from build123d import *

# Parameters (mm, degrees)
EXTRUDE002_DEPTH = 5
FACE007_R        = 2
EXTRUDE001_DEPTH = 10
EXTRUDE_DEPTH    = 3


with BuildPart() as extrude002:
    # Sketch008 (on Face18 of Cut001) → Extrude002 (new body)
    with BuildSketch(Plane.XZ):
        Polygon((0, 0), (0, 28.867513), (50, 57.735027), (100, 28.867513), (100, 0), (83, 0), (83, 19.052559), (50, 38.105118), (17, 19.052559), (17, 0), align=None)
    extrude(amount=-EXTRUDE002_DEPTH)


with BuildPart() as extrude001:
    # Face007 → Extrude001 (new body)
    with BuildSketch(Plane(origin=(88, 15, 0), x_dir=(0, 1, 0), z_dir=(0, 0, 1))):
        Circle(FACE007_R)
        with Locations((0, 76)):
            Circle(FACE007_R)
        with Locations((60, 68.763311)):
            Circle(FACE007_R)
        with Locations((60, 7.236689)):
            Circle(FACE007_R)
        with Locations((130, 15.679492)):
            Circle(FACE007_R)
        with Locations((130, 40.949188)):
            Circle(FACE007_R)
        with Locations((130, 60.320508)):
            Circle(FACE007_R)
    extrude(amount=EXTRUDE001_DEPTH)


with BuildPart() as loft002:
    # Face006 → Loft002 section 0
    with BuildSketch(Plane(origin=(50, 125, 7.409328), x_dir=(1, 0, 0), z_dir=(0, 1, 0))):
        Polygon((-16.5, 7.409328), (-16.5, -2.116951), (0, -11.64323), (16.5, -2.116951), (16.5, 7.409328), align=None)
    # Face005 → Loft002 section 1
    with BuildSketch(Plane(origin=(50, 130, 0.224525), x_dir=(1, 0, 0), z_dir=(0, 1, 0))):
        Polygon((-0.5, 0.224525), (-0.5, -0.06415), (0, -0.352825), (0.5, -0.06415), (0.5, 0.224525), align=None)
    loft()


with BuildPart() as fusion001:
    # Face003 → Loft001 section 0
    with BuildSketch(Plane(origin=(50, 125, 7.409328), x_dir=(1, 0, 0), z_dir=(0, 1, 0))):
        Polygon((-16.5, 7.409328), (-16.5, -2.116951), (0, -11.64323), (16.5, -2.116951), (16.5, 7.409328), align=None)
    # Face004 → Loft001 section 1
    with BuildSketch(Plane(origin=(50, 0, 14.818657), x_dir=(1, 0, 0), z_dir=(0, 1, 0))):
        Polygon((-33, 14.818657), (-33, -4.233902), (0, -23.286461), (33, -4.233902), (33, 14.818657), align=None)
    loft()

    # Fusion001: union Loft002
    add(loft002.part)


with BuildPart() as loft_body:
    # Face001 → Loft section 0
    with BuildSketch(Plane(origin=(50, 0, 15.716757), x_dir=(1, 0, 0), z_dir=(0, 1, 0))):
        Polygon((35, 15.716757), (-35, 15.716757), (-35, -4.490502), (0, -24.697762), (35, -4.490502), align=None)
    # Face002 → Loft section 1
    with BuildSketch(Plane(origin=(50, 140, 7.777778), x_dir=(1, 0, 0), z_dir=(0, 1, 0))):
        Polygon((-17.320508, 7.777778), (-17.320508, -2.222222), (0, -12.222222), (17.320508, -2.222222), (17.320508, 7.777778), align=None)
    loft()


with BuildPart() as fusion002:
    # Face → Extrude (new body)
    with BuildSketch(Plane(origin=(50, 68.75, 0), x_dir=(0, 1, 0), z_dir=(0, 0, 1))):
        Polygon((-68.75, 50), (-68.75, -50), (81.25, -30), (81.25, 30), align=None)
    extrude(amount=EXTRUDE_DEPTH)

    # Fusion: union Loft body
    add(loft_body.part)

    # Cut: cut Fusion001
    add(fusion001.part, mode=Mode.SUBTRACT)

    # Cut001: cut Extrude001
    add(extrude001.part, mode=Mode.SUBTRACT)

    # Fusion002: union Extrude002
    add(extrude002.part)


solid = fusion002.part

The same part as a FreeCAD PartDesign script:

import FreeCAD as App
import Part
import Sketcher
Q = App.Units.Quantity

doc = App.newDocument("Part")
body = doc.addObject("PartDesign::Body", "Body")

# Sketch on XZ plane
sketch1 = body.newObject("Sketcher::SketchObject", "Sketch")
sketch1.AttachmentSupport = (doc.getObject("XZ_Plane"), [""])
sketch1.MapMode = "FlatFace"
sketch1.addGeometry(Part.LineSegment(App.Vector(0, 28.867513, 0), App.Vector(0, 0, 0)), False)
sketch1.addGeometry(Part.LineSegment(App.Vector(0, 0, 0), App.Vector(17, 0, 0)), False)
sketch1.addGeometry(Part.LineSegment(App.Vector(17, 0, 0), App.Vector(17, 19.052559, 0)), False)
sketch1.addGeometry(Part.LineSegment(App.Vector(17, 19.052559, 0), App.Vector(50, 38.105118, 0)), False)
sketch1.addGeometry(Part.LineSegment(App.Vector(50, 38.105118, 0), App.Vector(83, 19.052559, 0)), False)
sketch1.addGeometry(Part.LineSegment(App.Vector(83, 19.052559, 0), App.Vector(83, 0, 0)), False)
sketch1.addGeometry(Part.LineSegment(App.Vector(83, 0, 0), App.Vector(100, 0, 0)), False)
sketch1.addGeometry(Part.LineSegment(App.Vector(100, 0, 0), App.Vector(100, 28.867513, 0)), False)
sketch1.addGeometry(Part.LineSegment(App.Vector(100, 28.867513, 0), App.Vector(50, 57.735027, 0)), False)
sketch1.addGeometry(Part.LineSegment(App.Vector(50, 57.735027, 0), App.Vector(0, 28.867513, 0)), False)
sketch1.addConstraint(Sketcher.Constraint("Coincident", 0, 2, 1, 1))
sketch1.addConstraint(Sketcher.Constraint("Coincident", 1, 2, 2, 1))
sketch1.addConstraint(Sketcher.Constraint("Coincident", 2, 2, 3, 1))
sketch1.addConstraint(Sketcher.Constraint("Coincident", 3, 2, 4, 1))
sketch1.addConstraint(Sketcher.Constraint("Coincident", 4, 2, 5, 1))
sketch1.addConstraint(Sketcher.Constraint("Coincident", 5, 2, 6, 1))
sketch1.addConstraint(Sketcher.Constraint("Coincident", 6, 2, 7, 1))
sketch1.addConstraint(Sketcher.Constraint("Coincident", 7, 2, 8, 1))
sketch1.addConstraint(Sketcher.Constraint("Coincident", 8, 2, 9, 1))
sketch1.addConstraint(Sketcher.Constraint("Coincident", 9, 2, 0, 1))
sketch1.addConstraint(Sketcher.Constraint("Vertical", 0))
sketch1.addConstraint(Sketcher.Constraint("Horizontal", 1))
sketch1.addConstraint(Sketcher.Constraint("Vertical", 2))
sketch1.addConstraint(Sketcher.Constraint("Vertical", 5))
sketch1.addConstraint(Sketcher.Constraint("Horizontal", 6))
sketch1.addConstraint(Sketcher.Constraint("Vertical", 7))
sketch1.addConstraint(Sketcher.Constraint("Coincident", 0, 2, -1, 1))
sketch1.addConstraint(Sketcher.Constraint("PointOnObject", 5, 2, -1))
sketch1.addConstraint(Sketcher.Constraint("Parallel", 4, 8))
sketch1.addConstraint(Sketcher.Constraint("Parallel", 3, 9))
sketch1.addConstraint(Sketcher.Constraint("Horizontal", 2, 2, 4, 2))
sketch1.addConstraint(Sketcher.Constraint("Horizontal", 7, 2, 9, 2))
sketch1.addConstraint(Sketcher.Constraint("Vertical", 3, 2, 8, 2))
sketch1.addConstraint(Sketcher.Constraint("Equal", 1, 6))
sketch1.addConstraint(Sketcher.Constraint("DistanceX", 1, 1, 1, 2, Q("17 mm")))
sketch1.addConstraint(Sketcher.Constraint("Angle", 3, Q("30 deg")))
sketch1.addConstraint(Sketcher.Constraint("DistanceX", -1, 1, 3, 2, Q("50 mm")))
sketch1.addConstraint(Sketcher.Constraint("DistanceY", 2, 1, 2, 2, Q("19.052559 mm")))
sketch1.addConstraint(Sketcher.Constraint("DistanceY", 0, 2, 0, 1, Q("28.867513 mm")))
pad1 = body.newObject("PartDesign::Pad", "Pad")
pad1.Profile = sketch1
pad1.Length = 5
pad1.Reversed = True
body2 = doc.addObject("PartDesign::Body", "Body001")
body2.AllowCompound = True

# Sketch on XY plane
sketch2 = body2.newObject("Sketcher::SketchObject", "Sketch001")
sketch2.AttachmentSupport = (doc.getObject("XY_Plane001"), [""])
sketch2.MapMode = "FlatFace"
sketch2.addGeometry(Part.Circle(App.Vector(88, 15, 0), App.Vector(0, 0, 1), 2), False)
sketch2.addGeometry(Part.Circle(App.Vector(12, 15, 0), App.Vector(0, 0, 1), 2), False)
sketch2.addGeometry(Part.Circle(App.Vector(19.236689, 75, 0), App.Vector(0, 0, 1), 2), False)
sketch2.addGeometry(Part.Circle(App.Vector(80.763311, 75, 0), App.Vector(0, 0, 1), 2), False)
sketch2.addGeometry(Part.Circle(App.Vector(72.320508, 145, 0), App.Vector(0, 0, 1), 2), False)
sketch2.addGeometry(Part.Circle(App.Vector(47.050812, 145, 0), App.Vector(0, 0, 1), 2), False)
sketch2.addGeometry(Part.Circle(App.Vector(27.679492, 145, 0), App.Vector(0, 0, 1), 2), False)
sketch2.addConstraint(Sketcher.Constraint("Equal", 0, 1))
sketch2.addConstraint(Sketcher.Constraint("Equal", 1, 2))
sketch2.addConstraint(Sketcher.Constraint("Equal", 2, 3))
sketch2.addConstraint(Sketcher.Constraint("Equal", 3, 4))
sketch2.addConstraint(Sketcher.Constraint("Equal", 4, 5))
sketch2.addConstraint(Sketcher.Constraint("Equal", 5, 6))
sketch2.addConstraint(Sketcher.Constraint("Horizontal", 0, 3, 1, 3))
sketch2.addConstraint(Sketcher.Constraint("Horizontal", 2, 3, 3, 3))
sketch2.addConstraint(Sketcher.Constraint("Horizontal", 4, 3, 5, 3))
sketch2.addConstraint(Sketcher.Constraint("Horizontal", 5, 3, 6, 3))
sketch2.addConstraint(Sketcher.Constraint("Diameter", 0, Q("4 mm")))
sketch2.addConstraint(Sketcher.Constraint("DistanceX", -1, 1, 0, 3, Q("88 mm")))
sketch2.addConstraint(Sketcher.Constraint("DistanceY", -1, 1, 0, 3, Q("15 mm")))
sketch2.addConstraint(Sketcher.Constraint("DistanceX", -1, 1, 1, 3, Q("12 mm")))
sketch2.addConstraint(Sketcher.Constraint("DistanceY", -1, 1, 2, 3, Q("75 mm")))
sketch2.addConstraint(Sketcher.Constraint("DistanceY", -1, 1, 4, 3, Q("145 mm")))
sketch2.addConstraint(Sketcher.Constraint("DistanceX", 5, 3, 3, 3, Q("33.712499 mm")))
sketch2.addConstraint(Sketcher.Constraint("DistanceX", -1, 1, 2, 3, Q("19.236689 mm")))
sketch2.addConstraint(Sketcher.Constraint("DistanceX", -1, 1, 3, 3, Q("80.763311 mm")))
sketch2.addConstraint(Sketcher.Constraint("DistanceX", -1, 1, 4, 3, Q("72.320508 mm")))
sketch2.addConstraint(Sketcher.Constraint("DistanceX", -1, 1, 6, 3, Q("27.679492 mm")))
pad2 = body2.newObject("PartDesign::Pad", "Pad001")
pad2.Profile = sketch2
pad2.Length = 10
body3 = doc.addObject("PartDesign::Body", "Body002")

# Sketch on XZ plane
sketch3 = body3.newObject("Sketcher::SketchObject", "Sketch002")
sketch3.AttachmentSupport = (doc.getObject("XZ_Plane002"), [""])
sketch3.MapMode = "FlatFace"
sketch3.AttachmentOffset = App.Placement(App.Vector(0, 0, -125), App.Rotation())
sketch3.addGeometry(Part.LineSegment(App.Vector(33.5, 0, 0), App.Vector(33.5, 9.526279, 0)), False)
sketch3.addGeometry(Part.LineSegment(App.Vector(33.5, 9.526279, 0), App.Vector(50, 19.052558, 0)), False)
sketch3.addGeometry(Part.LineSegment(App.Vector(50, 19.052558, 0), App.Vector(66.5, 9.526279, 0)), False)
sketch3.addGeometry(Part.LineSegment(App.Vector(66.5, 9.526279, 0), App.Vector(66.5, 0, 0)), False)
sketch3.addGeometry(Part.LineSegment(App.Vector(66.5, 0, 0), App.Vector(33.5, 0, 0)), False)
sketch3.addConstraint(Sketcher.Constraint("Coincident", 0, 2, 1, 1))
sketch3.addConstraint(Sketcher.Constraint("Coincident", 1, 2, 2, 1))
sketch3.addConstraint(Sketcher.Constraint("Coincident", 2, 2, 3, 1))
sketch3.addConstraint(Sketcher.Constraint("Coincident", 3, 2, 4, 1))
sketch3.addConstraint(Sketcher.Constraint("Coincident", 4, 2, 0, 1))
sketch3.addConstraint(Sketcher.Constraint("Vertical", 0))
sketch3.addConstraint(Sketcher.Constraint("Vertical", 3))
sketch3.addConstraint(Sketcher.Constraint("Horizontal", 4))
sketch3.addConstraint(Sketcher.Constraint("PointOnObject", 3, 2, -1))
sketch3.addConstraint(Sketcher.Constraint("Horizontal", 0, 2, 2, 2))
sketch3.addConstraint(Sketcher.Constraint("Equal", 1, 2))
sketch3.addConstraint(Sketcher.Constraint("DistanceX", 4, 2, 4, 1, Q("33 mm")))
sketch3.addConstraint(Sketcher.Constraint("Angle", 1, Q("29.999999 deg")))
sketch3.addConstraint(Sketcher.Constraint("DistanceX", -1, 1, 1, 2, Q("50 mm")))
sketch3.addConstraint(Sketcher.Constraint("DistanceY", 0, 1, 0, 2, Q("9.526279 mm")))

# Sketch on XZ plane
sketch4 = body3.newObject("Sketcher::SketchObject", "Sketch003")
sketch4.AttachmentSupport = (doc.getObject("XZ_Plane002"), [""])
sketch4.MapMode = "FlatFace"
sketch4.AttachmentOffset = App.Placement(App.Vector(0, 0, -130), App.Rotation())
sketch4.addGeometry(Part.LineSegment(App.Vector(49.5, 0, 0), App.Vector(49.5, 0.288675, 0)), False)
sketch4.addGeometry(Part.LineSegment(App.Vector(49.5, 0.288675, 0), App.Vector(50, 0.57735, 0)), False)
sketch4.addGeometry(Part.LineSegment(App.Vector(50, 0.57735, 0), App.Vector(50.5, 0.288675, 0)), False)
sketch4.addGeometry(Part.LineSegment(App.Vector(50.5, 0.288675, 0), App.Vector(50.5, 0, 0)), False)
sketch4.addGeometry(Part.LineSegment(App.Vector(50.5, 0, 0), App.Vector(49.5, 0, 0)), False)
sketch4.addConstraint(Sketcher.Constraint("Coincident", 0, 2, 1, 1))
sketch4.addConstraint(Sketcher.Constraint("Coincident", 1, 2, 2, 1))
sketch4.addConstraint(Sketcher.Constraint("Coincident", 2, 2, 3, 1))
sketch4.addConstraint(Sketcher.Constraint("Coincident", 3, 2, 4, 1))
sketch4.addConstraint(Sketcher.Constraint("Coincident", 4, 2, 0, 1))
sketch4.addConstraint(Sketcher.Constraint("Vertical", 0))
sketch4.addConstraint(Sketcher.Constraint("Vertical", 3))
sketch4.addConstraint(Sketcher.Constraint("Horizontal", 4))
sketch4.addConstraint(Sketcher.Constraint("PointOnObject", 3, 2, -1))
sketch4.addConstraint(Sketcher.Constraint("Horizontal", 0, 2, 2, 2))
sketch4.addConstraint(Sketcher.Constraint("Equal", 1, 2))
sketch4.addConstraint(Sketcher.Constraint("DistanceX", 4, 2, 4, 1, Q("1 mm")))
sketch4.addConstraint(Sketcher.Constraint("Angle", 1, Q("29.999988 deg")))
sketch4.addConstraint(Sketcher.Constraint("DistanceX", -1, 1, 1, 2, Q("50 mm")))
sketch4.addConstraint(Sketcher.Constraint("DistanceY", 0, 1, 0, 2, Q("0.288675 mm")))

additiveloft = body3.newObject("PartDesign::AdditiveLoft", "AdditiveLoft")
additiveloft.Profile = sketch3
additiveloft.Sections = [sketch4]
body4 = doc.addObject("PartDesign::Body", "Body003")

# Sketch on XZ plane
sketch5 = body4.newObject("Sketcher::SketchObject", "Sketch004")
sketch5.AttachmentSupport = (doc.getObject("XZ_Plane003"), [""])
sketch5.MapMode = "FlatFace"
sketch5.AttachmentOffset = App.Placement(App.Vector(0, 0, -125), App.Rotation())
sketch5.addGeometry(Part.LineSegment(App.Vector(33.5, 0, 0), App.Vector(33.5, 9.526279, 0)), False)
sketch5.addGeometry(Part.LineSegment(App.Vector(33.5, 9.526279, 0), App.Vector(50, 19.052558, 0)), False)
sketch5.addGeometry(Part.LineSegment(App.Vector(50, 19.052558, 0), App.Vector(66.5, 9.526279, 0)), False)
sketch5.addGeometry(Part.LineSegment(App.Vector(66.5, 9.526279, 0), App.Vector(66.5, 0, 0)), False)
sketch5.addGeometry(Part.LineSegment(App.Vector(66.5, 0, 0), App.Vector(33.5, 0, 0)), False)
sketch5.addConstraint(Sketcher.Constraint("Coincident", 0, 2, 1, 1))
sketch5.addConstraint(Sketcher.Constraint("Coincident", 1, 2, 2, 1))
sketch5.addConstraint(Sketcher.Constraint("Coincident", 2, 2, 3, 1))
sketch5.addConstraint(Sketcher.Constraint("Coincident", 3, 2, 4, 1))
sketch5.addConstraint(Sketcher.Constraint("Coincident", 4, 2, 0, 1))
sketch5.addConstraint(Sketcher.Constraint("Vertical", 0))
sketch5.addConstraint(Sketcher.Constraint("Vertical", 3))
sketch5.addConstraint(Sketcher.Constraint("Horizontal", 4))
sketch5.addConstraint(Sketcher.Constraint("PointOnObject", 3, 2, -1))
sketch5.addConstraint(Sketcher.Constraint("Horizontal", 0, 2, 2, 2))
sketch5.addConstraint(Sketcher.Constraint("Equal", 1, 2))
sketch5.addConstraint(Sketcher.Constraint("DistanceX", 4, 2, 4, 1, Q("33 mm")))
sketch5.addConstraint(Sketcher.Constraint("Angle", 1, Q("29.999999 deg")))
sketch5.addConstraint(Sketcher.Constraint("DistanceX", -1, 1, 1, 2, Q("50 mm")))
sketch5.addConstraint(Sketcher.Constraint("DistanceY", 0, 1, 0, 2, Q("9.526279 mm")))

# Sketch on XZ plane
sketch6 = body4.newObject("Sketcher::SketchObject", "Sketch005")
sketch6.AttachmentSupport = (doc.getObject("XZ_Plane003"), [""])
sketch6.MapMode = "FlatFace"
sketch6.addGeometry(Part.LineSegment(App.Vector(17, 0, 0), App.Vector(17, 19.052559, 0)), False)
sketch6.addGeometry(Part.LineSegment(App.Vector(17, 19.052559, 0), App.Vector(50, 38.105118, 0)), False)
sketch6.addGeometry(Part.LineSegment(App.Vector(50, 38.105118, 0), App.Vector(83, 19.052559, 0)), False)
sketch6.addGeometry(Part.LineSegment(App.Vector(83, 19.052559, 0), App.Vector(83, 0, 0)), False)
sketch6.addGeometry(Part.LineSegment(App.Vector(83, 0, 0), App.Vector(17, 0, 0)), False)
sketch6.addConstraint(Sketcher.Constraint("Coincident", 0, 2, 1, 1))
sketch6.addConstraint(Sketcher.Constraint("Coincident", 1, 2, 2, 1))
sketch6.addConstraint(Sketcher.Constraint("Coincident", 2, 2, 3, 1))
sketch6.addConstraint(Sketcher.Constraint("Coincident", 3, 2, 4, 1))
sketch6.addConstraint(Sketcher.Constraint("Coincident", 4, 2, 0, 1))
sketch6.addConstraint(Sketcher.Constraint("Vertical", 0))
sketch6.addConstraint(Sketcher.Constraint("Vertical", 3))
sketch6.addConstraint(Sketcher.Constraint("Horizontal", 4))
sketch6.addConstraint(Sketcher.Constraint("PointOnObject", 3, 2, -1))
sketch6.addConstraint(Sketcher.Constraint("Horizontal", 0, 2, 2, 2))
sketch6.addConstraint(Sketcher.Constraint("Equal", 1, 2))
sketch6.addConstraint(Sketcher.Constraint("DistanceX", 4, 2, 4, 1, Q("66 mm")))
sketch6.addConstraint(Sketcher.Constraint("Angle", 1, Q("30 deg")))
sketch6.addConstraint(Sketcher.Constraint("DistanceX", -1, 1, 0, 2, Q("17 mm")))
sketch6.addConstraint(Sketcher.Constraint("DistanceY", 0, 1, 0, 2, Q("19.052559 mm")))

additiveloft2 = body4.newObject("PartDesign::AdditiveLoft", "AdditiveLoft001")
additiveloft2.Profile = sketch5
additiveloft2.Sections = [sketch6]
doc.recompute()

boolean = body4.newObject("PartDesign::Boolean", "Boolean")
boolean.Type = "Fuse"
boolean.addObjects([body3])
body5 = doc.addObject("PartDesign::Body", "Body004")

# Sketch on XZ plane
sketch7 = body5.newObject("Sketcher::SketchObject", "Sketch006")
sketch7.AttachmentSupport = (doc.getObject("XZ_Plane004"), [""])
sketch7.MapMode = "FlatFace"
sketch7.addGeometry(Part.LineSegment(App.Vector(85, 0, 0), App.Vector(15, 0, 0)), False)
sketch7.addGeometry(Part.LineSegment(App.Vector(15, 0, 0), App.Vector(15, 20.207259, 0)), False)
sketch7.addGeometry(Part.LineSegment(App.Vector(15, 20.207259, 0), App.Vector(50, 40.414519, 0)), False)
sketch7.addGeometry(Part.LineSegment(App.Vector(50, 40.414519, 0), App.Vector(85, 20.207259, 0)), False)
sketch7.addGeometry(Part.LineSegment(App.Vector(85, 20.207259, 0), App.Vector(85, 0, 0)), False)
sketch7.addConstraint(Sketcher.Constraint("Coincident", 0, 2, 1, 1))
sketch7.addConstraint(Sketcher.Constraint("Coincident", 1, 2, 2, 1))
sketch7.addConstraint(Sketcher.Constraint("Coincident", 2, 2, 3, 1))
sketch7.addConstraint(Sketcher.Constraint("Coincident", 3, 2, 4, 1))
sketch7.addConstraint(Sketcher.Constraint("Coincident", 4, 2, 0, 1))
sketch7.addConstraint(Sketcher.Constraint("Horizontal", 0))
sketch7.addConstraint(Sketcher.Constraint("Vertical", 1))
sketch7.addConstraint(Sketcher.Constraint("Vertical", 4))
sketch7.addConstraint(Sketcher.Constraint("PointOnObject", 0, 2, -1))
sketch7.addConstraint(Sketcher.Constraint("Horizontal", 1, 2, 3, 2))
sketch7.addConstraint(Sketcher.Constraint("Equal", 2, 3))
sketch7.addConstraint(Sketcher.Constraint("DistanceX", 0, 2, 0, 1, Q("70 mm")))
sketch7.addConstraint(Sketcher.Constraint("Angle", 2, Q("30.000001 deg")))
sketch7.addConstraint(Sketcher.Constraint("DistanceX", -1, 1, 0, 2, Q("15 mm")))
sketch7.addConstraint(Sketcher.Constraint("DistanceY", 1, 1, 1, 2, Q("20.207259 mm")))

# Sketch on XZ plane
sketch8 = body5.newObject("Sketcher::SketchObject", "Sketch007")
sketch8.AttachmentSupport = (doc.getObject("XZ_Plane004"), [""])
sketch8.MapMode = "FlatFace"
sketch8.AttachmentOffset = App.Placement(App.Vector(0, 0, -140), App.Rotation())
sketch8.addGeometry(Part.LineSegment(App.Vector(32.679492, 0, 0), App.Vector(32.679492, 10, 0)), False)
sketch8.addGeometry(Part.LineSegment(App.Vector(32.679492, 10, 0), App.Vector(50, 20, 0)), False)
sketch8.addGeometry(Part.LineSegment(App.Vector(50, 20, 0), App.Vector(67.320508, 10, 0)), False)
sketch8.addGeometry(Part.LineSegment(App.Vector(67.320508, 10, 0), App.Vector(67.320508, 0, 0)), False)
sketch8.addGeometry(Part.LineSegment(App.Vector(67.320508, 0, 0), App.Vector(32.679492, 0, 0)), False)
sketch8.addConstraint(Sketcher.Constraint("Coincident", 0, 2, 1, 1))
sketch8.addConstraint(Sketcher.Constraint("Coincident", 1, 2, 2, 1))
sketch8.addConstraint(Sketcher.Constraint("Coincident", 2, 2, 3, 1))
sketch8.addConstraint(Sketcher.Constraint("Coincident", 3, 2, 4, 1))
sketch8.addConstraint(Sketcher.Constraint("Coincident", 4, 2, 0, 1))
sketch8.addConstraint(Sketcher.Constraint("Vertical", 0))
sketch8.addConstraint(Sketcher.Constraint("Vertical", 3))
sketch8.addConstraint(Sketcher.Constraint("Horizontal", 4))
sketch8.addConstraint(Sketcher.Constraint("PointOnObject", 3, 2, -1))
sketch8.addConstraint(Sketcher.Constraint("Horizontal", 0, 2, 2, 2))
sketch8.addConstraint(Sketcher.Constraint("Equal", 1, 2))
sketch8.addConstraint(Sketcher.Constraint("DistanceY", 0, 1, 0, 2, Q("10 mm")))
sketch8.addConstraint(Sketcher.Constraint("Angle", 1, Q("30 deg")))
sketch8.addConstraint(Sketcher.Constraint("Distance", 1, Q("20 mm")))
sketch8.addConstraint(Sketcher.Constraint("DistanceX", -1, 1, 1, 2, Q("50 mm")))

additiveloft3 = body5.newObject("PartDesign::AdditiveLoft", "AdditiveLoft002")
additiveloft3.Profile = sketch7
additiveloft3.Sections = [sketch8]
body6 = doc.addObject("PartDesign::Body", "Body005")

# Sketch on XY plane
sketch9 = body6.newObject("Sketcher::SketchObject", "Sketch008")
sketch9.AttachmentSupport = (doc.getObject("XY_Plane005"), [""])
sketch9.MapMode = "FlatFace"
sketch9.addGeometry(Part.LineSegment(App.Vector(0, 0, 0), App.Vector(100, 0, 0)), False)
sketch9.addGeometry(Part.LineSegment(App.Vector(100, 0, 0), App.Vector(80, 150, 0)), False)
sketch9.addGeometry(Part.LineSegment(App.Vector(80, 150, 0), App.Vector(20, 150, 0)), False)
sketch9.addGeometry(Part.LineSegment(App.Vector(20, 150, 0), App.Vector(0, 0, 0)), False)
sketch9.addConstraint(Sketcher.Constraint("Coincident", 0, 2, 1, 1))
sketch9.addConstraint(Sketcher.Constraint("Coincident", 1, 2, 2, 1))
sketch9.addConstraint(Sketcher.Constraint("Coincident", 2, 2, 3, 1))
sketch9.addConstraint(Sketcher.Constraint("Coincident", 3, 2, 0, 1))
sketch9.addConstraint(Sketcher.Constraint("Horizontal", 0))
sketch9.addConstraint(Sketcher.Constraint("Horizontal", 2))
sketch9.addConstraint(Sketcher.Constraint("Coincident", 3, 2, -1, 1))
sketch9.addConstraint(Sketcher.Constraint("Equal", 1, 3))
sketch9.addConstraint(Sketcher.Constraint("DistanceX", 0, 1, 0, 2, Q("100 mm")))
sketch9.addConstraint(Sketcher.Constraint("DistanceX", 2, 2, 2, 1, Q("60 mm")))
sketch9.addConstraint(Sketcher.Constraint("DistanceY", -1, 1, 1, 2, Q("150 mm")))
pad3 = body6.newObject("PartDesign::Pad", "Pad002")
pad3.Profile = sketch9
pad3.Length = 3
doc.recompute()

boolean2 = body6.newObject("PartDesign::Boolean", "Boolean001")
boolean2.Type = "Fuse"
boolean2.addObjects([body5])
doc.recompute()

boolean3 = body6.newObject("PartDesign::Boolean", "Boolean002")
boolean3.Type = "Cut"
boolean3.addObjects([body4])
doc.recompute()

boolean4 = body6.newObject("PartDesign::Boolean", "Boolean003")
boolean4.Type = "Cut"
boolean4.addObjects([body2])
doc.recompute()

boolean5 = body6.newObject("PartDesign::Boolean", "Boolean004")
boolean5.Type = "Fuse"
boolean5.addObjects([body])

doc.recompute()
